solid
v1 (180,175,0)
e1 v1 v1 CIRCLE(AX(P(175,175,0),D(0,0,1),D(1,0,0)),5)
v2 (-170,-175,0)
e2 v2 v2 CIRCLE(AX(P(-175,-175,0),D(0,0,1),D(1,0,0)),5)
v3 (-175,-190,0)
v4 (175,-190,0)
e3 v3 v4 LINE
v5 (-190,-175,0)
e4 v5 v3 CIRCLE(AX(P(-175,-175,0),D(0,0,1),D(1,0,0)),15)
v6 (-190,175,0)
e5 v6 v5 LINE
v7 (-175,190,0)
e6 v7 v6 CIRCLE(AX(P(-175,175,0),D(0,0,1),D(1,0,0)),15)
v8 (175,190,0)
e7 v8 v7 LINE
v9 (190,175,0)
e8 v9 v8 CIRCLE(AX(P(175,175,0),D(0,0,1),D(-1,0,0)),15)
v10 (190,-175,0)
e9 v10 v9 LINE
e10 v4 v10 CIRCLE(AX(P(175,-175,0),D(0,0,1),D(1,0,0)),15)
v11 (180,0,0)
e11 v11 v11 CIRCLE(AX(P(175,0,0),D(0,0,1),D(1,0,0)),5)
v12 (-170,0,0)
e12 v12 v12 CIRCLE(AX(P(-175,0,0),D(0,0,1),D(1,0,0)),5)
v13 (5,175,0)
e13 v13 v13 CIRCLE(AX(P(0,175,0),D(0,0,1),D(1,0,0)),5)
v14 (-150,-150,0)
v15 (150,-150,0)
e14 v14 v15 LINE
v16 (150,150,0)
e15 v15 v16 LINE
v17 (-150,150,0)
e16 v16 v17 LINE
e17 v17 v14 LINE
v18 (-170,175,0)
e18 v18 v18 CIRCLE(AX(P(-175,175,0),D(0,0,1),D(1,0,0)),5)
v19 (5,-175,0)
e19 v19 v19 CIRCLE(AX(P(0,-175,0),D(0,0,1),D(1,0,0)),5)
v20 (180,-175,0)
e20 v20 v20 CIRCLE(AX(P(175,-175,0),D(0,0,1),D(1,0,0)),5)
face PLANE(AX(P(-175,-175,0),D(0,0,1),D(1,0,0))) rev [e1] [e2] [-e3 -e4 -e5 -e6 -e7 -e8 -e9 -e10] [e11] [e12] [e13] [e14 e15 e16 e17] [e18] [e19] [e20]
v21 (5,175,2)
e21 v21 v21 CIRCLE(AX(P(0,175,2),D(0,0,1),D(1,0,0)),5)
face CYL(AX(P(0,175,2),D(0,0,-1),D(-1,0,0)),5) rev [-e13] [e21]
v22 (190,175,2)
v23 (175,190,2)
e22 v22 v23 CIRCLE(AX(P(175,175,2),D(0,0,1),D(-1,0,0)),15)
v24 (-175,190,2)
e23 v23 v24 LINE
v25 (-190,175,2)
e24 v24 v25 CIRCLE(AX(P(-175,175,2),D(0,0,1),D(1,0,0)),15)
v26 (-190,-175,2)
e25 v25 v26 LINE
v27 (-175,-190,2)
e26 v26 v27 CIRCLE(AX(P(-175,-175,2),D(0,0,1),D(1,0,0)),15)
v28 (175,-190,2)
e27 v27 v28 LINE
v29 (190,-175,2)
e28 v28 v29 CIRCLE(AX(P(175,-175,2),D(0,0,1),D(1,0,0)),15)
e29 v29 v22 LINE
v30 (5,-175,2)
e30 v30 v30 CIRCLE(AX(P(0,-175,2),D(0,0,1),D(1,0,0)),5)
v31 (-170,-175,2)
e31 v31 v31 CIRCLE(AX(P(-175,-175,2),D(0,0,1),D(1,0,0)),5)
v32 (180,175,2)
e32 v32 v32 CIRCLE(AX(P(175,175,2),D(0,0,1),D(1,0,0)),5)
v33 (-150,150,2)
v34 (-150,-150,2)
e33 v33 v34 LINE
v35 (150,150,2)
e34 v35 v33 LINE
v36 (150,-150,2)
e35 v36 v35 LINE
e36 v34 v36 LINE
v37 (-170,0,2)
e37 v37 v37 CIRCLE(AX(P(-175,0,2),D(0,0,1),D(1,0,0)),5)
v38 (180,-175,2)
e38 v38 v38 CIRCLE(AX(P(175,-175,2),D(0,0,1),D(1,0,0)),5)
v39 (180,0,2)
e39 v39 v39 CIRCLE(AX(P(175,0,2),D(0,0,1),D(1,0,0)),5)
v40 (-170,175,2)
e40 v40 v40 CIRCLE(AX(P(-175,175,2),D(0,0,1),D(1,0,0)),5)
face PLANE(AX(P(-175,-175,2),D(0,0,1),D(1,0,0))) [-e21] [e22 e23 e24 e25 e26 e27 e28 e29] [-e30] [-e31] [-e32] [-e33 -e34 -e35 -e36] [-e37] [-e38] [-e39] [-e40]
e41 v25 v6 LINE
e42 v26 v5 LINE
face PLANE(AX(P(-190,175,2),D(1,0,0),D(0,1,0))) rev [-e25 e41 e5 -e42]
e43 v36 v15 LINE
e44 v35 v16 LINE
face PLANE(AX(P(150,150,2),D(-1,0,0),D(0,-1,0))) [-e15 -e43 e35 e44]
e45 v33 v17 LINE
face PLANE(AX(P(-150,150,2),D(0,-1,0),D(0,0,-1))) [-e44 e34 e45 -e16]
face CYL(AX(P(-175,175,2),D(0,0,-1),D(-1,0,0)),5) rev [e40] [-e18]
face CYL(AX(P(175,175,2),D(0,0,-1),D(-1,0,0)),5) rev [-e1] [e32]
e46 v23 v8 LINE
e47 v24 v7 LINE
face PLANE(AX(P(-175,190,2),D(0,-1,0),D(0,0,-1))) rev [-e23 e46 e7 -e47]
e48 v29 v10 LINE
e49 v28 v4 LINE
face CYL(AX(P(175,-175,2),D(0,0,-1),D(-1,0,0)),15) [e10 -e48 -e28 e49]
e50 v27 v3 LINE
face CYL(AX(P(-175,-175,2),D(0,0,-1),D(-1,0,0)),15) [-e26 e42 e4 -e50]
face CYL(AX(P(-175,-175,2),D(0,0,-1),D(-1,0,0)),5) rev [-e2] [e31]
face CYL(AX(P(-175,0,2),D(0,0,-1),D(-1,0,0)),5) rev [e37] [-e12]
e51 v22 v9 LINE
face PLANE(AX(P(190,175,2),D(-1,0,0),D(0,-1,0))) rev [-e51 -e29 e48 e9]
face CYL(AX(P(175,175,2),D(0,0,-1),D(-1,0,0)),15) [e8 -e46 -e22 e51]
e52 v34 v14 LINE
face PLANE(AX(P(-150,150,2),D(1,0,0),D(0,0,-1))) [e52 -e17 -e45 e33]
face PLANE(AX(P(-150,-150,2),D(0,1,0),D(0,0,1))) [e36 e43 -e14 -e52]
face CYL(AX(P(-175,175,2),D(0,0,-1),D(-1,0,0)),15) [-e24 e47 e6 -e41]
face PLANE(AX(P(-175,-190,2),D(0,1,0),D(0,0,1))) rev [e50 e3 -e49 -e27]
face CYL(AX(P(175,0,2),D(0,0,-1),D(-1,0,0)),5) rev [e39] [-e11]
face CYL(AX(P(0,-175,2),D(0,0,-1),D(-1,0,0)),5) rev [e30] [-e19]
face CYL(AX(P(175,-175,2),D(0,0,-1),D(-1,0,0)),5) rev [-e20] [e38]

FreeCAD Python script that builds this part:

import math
import FreeCAD as App
import Part
import Sketcher


def add_polygon(sketch, points):
    """Adds a closed chain of lines whose ends are joined by coincident constraints."""
    first, n = sketch.GeometryCount, len(points)
    for a, b in zip(points, points[1:] + points[:1]):
        sketch.addGeometry(Part.LineSegment(App.Vector(*a, 0), App.Vector(*b, 0)), False)
    for i in range(n):
        sketch.addConstraint(Sketcher.Constraint("Coincident", first + i, 2, first + (i + 1) % n, 1))

doc = App.newDocument("Part")
body = doc.addObject("PartDesign::Body", "Body")

sketch1 = doc.addObject("Sketcher::SketchObject", "Sketch")
body.addObject(sketch1)
sketch1.AttachmentSupport = (doc.XY_Plane, [""])
sketch1.MapMode = "FlatFace"
sketch1.addGeometry(Part.LineSegment(App.Vector(175, 190, 0), App.Vector(-175, 190, 0)), False)
sketch1.addGeometry(Part.ArcOfCircle(Part.Circle(App.Vector(-175, 175, 0), App.Vector(0, 0, 1), 15), math.radians(90), math.radians(180)), False)
sketch1.addGeometry(Part.LineSegment(App.Vector(-190, 175, 0), App.Vector(-190, -175, 0)), False)
sketch1.addGeometry(Part.ArcOfCircle(Part.Circle(App.Vector(-175, -175, 0), App.Vector(0, 0, 1), 15), math.radians(180), math.radians(270)), False)
sketch1.addGeometry(Part.LineSegment(App.Vector(-175, -190, 0), App.Vector(175, -190, 0)), False)
sketch1.addGeometry(Part.ArcOfCircle(Part.Circle(App.Vector(175, -175, 0), App.Vector(0, 0, 1), 15), math.radians(-90), math.radians(0)), False)
sketch1.addGeometry(Part.LineSegment(App.Vector(190, -175, 0), App.Vector(190, 175, 0)), False)
sketch1.addGeometry(Part.ArcOfCircle(Part.Circle(App.Vector(175, 175, 0), App.Vector(0, 0, 1), 15), math.radians(0), math.radians(90)), False)
sketch1.addGeometry(Part.Circle(App.Vector(175, -175, 0), App.Vector(0, 0, 1), 5), False)
sketch1.addGeometry(Part.Circle(App.Vector(0, -175, 0), App.Vector(0, 0, 1), 5), False)
sketch1.addGeometry(Part.Circle(App.Vector(-175, -175, 0), App.Vector(0, 0, 1), 5), False)
sketch1.addGeometry(Part.Circle(App.Vector(175, 0, 0), App.Vector(0, 0, 1), 5), False)
sketch1.addGeometry(Part.Circle(App.Vector(175, 175, 0), App.Vector(0, 0, 1), 5), False)
add_polygon(sketch1, [(-150, -150), (-150, 150), (150, 150), (150, -150)])
sketch1.addGeometry(Part.Circle(App.Vector(-175, 0, 0), App.Vector(0, 0, 1), 5), False)
sketch1.addGeometry(Part.Circle(App.Vector(0, 175, 0), App.Vector(0, 0, 1), 5), False)
sketch1.addGeometry(Part.Circle(App.Vector(-175, 175, 0), App.Vector(0, 0, 1), 5), False)
sketch1.addConstraint(Sketcher.Constraint("Tangent", 0, 2, 1, 1))
sketch1.addConstraint(Sketcher.Constraint("Tangent", 1, 2, 2, 1))
sketch1.addConstraint(Sketcher.Constraint("Tangent", 2, 2, 3, 1))
sketch1.addConstraint(Sketcher.Constraint("Tangent", 3, 2, 4, 1))
sketch1.addConstraint(Sketcher.Constraint("Tangent", 4, 2, 5, 1))
sketch1.addConstraint(Sketcher.Constraint("Tangent", 5, 2, 6, 1))
sketch1.addConstraint(Sketcher.Constraint("Tangent", 6, 2, 7, 1))
sketch1.addConstraint(Sketcher.Constraint("Tangent", 7, 2, 0, 1))
sketch1.addConstraint(Sketcher.Constraint("Horizontal", 0))
sketch1.addConstraint(Sketcher.Constraint("Vertical", 2))
sketch1.addConstraint(Sketcher.Constraint("Horizontal", 4))
sketch1.addConstraint(Sketcher.Constraint("Vertical", 6))
sketch1.addConstraint(Sketcher.Constraint("Vertical", 13))
sketch1.addConstraint(Sketcher.Constraint("Horizontal", 14))
sketch1.addConstraint(Sketcher.Constraint("Vertical", 15))
sketch1.addConstraint(Sketcher.Constraint("Horizontal", 16))
sketch1.addConstraint(Sketcher.Constraint("Coincident", 8, 3, 5, 3))
sketch1.addConstraint(Sketcher.Constraint("Coincident", 10, 3, 3, 3))
sketch1.addConstraint(Sketcher.Constraint("Coincident", 12, 3, 7, 3))
sketch1.addConstraint(Sketcher.Constraint("Coincident", 19, 3, 1, 3))
sketch1.addConstraint(Sketcher.Constraint("Equal", 1, 3))
sketch1.addConstraint(Sketcher.Constraint("Equal", 3, 5))
sketch1.addConstraint(Sketcher.Constraint("Equal", 5, 7))
sketch1.addConstraint(Sketcher.Constraint("Equal", 8, 9))
sketch1.addConstraint(Sketcher.Constraint("Equal", 9, 10))
sketch1.addConstraint(Sketcher.Constraint("Equal", 10, 11))
sketch1.addConstraint(Sketcher.Constraint("Equal", 11, 12))
sketch1.addConstraint(Sketcher.Constraint("Equal", 12, 17))
sketch1.addConstraint(Sketcher.Constraint("Equal", 17, 18))
sketch1.addConstraint(Sketcher.Constraint("Equal", 18, 19))
sketch1.addConstraint(Sketcher.Constraint("Symmetric", 1, 3, 5, 3, -1, 1))
sketch1.addConstraint(Sketcher.Constraint("Symmetric", 11, 3, 17, 3, -1, 1))
sketch1.addConstraint(Sketcher.Constraint("Symmetric", 9, 3, 18, 3, -1, 1))
sketch1.addConstraint(Sketcher.Constraint("Symmetric", 13, 2, 15, 2, -1, 1))
sketch1.addConstraint(Sketcher.Constraint("PointOnObject", 9, 3, -2))
sketch1.addConstraint(Sketcher.Constraint("PointOnObject", 11, 3, -1))
sketch1.addConstraint(Sketcher.Constraint("Horizontal", 8, 3, 9, 3))
sketch1.addConstraint(Sketcher.Constraint("Vertical", 8, 3, 11, 3))
sketch1.addConstraint(Sketcher.Constraint("Equal", 4, 2))
sketch1.addConstraint(Sketcher.Constraint("Equal", 16, 13))
sketch1.addConstraint(Sketcher.Constraint("Diameter", 8, 10.0))
sketch1.addConstraint(Sketcher.Constraint("Radius", 1, 15.0))
sketch1.addConstraint(Sketcher.Constraint("DistanceX", 0, 2, 0, 1, 350.0))
sketch1.addConstraint(Sketcher.Constraint("DistanceX", 14, 1, 14, 2, 300.0))
pad1 = doc.addObject("PartDesign::Pad", "Pad")
body.addObject(pad1)
pad1.Profile = sketch1
pad1.Length = 2

doc.recompute()
